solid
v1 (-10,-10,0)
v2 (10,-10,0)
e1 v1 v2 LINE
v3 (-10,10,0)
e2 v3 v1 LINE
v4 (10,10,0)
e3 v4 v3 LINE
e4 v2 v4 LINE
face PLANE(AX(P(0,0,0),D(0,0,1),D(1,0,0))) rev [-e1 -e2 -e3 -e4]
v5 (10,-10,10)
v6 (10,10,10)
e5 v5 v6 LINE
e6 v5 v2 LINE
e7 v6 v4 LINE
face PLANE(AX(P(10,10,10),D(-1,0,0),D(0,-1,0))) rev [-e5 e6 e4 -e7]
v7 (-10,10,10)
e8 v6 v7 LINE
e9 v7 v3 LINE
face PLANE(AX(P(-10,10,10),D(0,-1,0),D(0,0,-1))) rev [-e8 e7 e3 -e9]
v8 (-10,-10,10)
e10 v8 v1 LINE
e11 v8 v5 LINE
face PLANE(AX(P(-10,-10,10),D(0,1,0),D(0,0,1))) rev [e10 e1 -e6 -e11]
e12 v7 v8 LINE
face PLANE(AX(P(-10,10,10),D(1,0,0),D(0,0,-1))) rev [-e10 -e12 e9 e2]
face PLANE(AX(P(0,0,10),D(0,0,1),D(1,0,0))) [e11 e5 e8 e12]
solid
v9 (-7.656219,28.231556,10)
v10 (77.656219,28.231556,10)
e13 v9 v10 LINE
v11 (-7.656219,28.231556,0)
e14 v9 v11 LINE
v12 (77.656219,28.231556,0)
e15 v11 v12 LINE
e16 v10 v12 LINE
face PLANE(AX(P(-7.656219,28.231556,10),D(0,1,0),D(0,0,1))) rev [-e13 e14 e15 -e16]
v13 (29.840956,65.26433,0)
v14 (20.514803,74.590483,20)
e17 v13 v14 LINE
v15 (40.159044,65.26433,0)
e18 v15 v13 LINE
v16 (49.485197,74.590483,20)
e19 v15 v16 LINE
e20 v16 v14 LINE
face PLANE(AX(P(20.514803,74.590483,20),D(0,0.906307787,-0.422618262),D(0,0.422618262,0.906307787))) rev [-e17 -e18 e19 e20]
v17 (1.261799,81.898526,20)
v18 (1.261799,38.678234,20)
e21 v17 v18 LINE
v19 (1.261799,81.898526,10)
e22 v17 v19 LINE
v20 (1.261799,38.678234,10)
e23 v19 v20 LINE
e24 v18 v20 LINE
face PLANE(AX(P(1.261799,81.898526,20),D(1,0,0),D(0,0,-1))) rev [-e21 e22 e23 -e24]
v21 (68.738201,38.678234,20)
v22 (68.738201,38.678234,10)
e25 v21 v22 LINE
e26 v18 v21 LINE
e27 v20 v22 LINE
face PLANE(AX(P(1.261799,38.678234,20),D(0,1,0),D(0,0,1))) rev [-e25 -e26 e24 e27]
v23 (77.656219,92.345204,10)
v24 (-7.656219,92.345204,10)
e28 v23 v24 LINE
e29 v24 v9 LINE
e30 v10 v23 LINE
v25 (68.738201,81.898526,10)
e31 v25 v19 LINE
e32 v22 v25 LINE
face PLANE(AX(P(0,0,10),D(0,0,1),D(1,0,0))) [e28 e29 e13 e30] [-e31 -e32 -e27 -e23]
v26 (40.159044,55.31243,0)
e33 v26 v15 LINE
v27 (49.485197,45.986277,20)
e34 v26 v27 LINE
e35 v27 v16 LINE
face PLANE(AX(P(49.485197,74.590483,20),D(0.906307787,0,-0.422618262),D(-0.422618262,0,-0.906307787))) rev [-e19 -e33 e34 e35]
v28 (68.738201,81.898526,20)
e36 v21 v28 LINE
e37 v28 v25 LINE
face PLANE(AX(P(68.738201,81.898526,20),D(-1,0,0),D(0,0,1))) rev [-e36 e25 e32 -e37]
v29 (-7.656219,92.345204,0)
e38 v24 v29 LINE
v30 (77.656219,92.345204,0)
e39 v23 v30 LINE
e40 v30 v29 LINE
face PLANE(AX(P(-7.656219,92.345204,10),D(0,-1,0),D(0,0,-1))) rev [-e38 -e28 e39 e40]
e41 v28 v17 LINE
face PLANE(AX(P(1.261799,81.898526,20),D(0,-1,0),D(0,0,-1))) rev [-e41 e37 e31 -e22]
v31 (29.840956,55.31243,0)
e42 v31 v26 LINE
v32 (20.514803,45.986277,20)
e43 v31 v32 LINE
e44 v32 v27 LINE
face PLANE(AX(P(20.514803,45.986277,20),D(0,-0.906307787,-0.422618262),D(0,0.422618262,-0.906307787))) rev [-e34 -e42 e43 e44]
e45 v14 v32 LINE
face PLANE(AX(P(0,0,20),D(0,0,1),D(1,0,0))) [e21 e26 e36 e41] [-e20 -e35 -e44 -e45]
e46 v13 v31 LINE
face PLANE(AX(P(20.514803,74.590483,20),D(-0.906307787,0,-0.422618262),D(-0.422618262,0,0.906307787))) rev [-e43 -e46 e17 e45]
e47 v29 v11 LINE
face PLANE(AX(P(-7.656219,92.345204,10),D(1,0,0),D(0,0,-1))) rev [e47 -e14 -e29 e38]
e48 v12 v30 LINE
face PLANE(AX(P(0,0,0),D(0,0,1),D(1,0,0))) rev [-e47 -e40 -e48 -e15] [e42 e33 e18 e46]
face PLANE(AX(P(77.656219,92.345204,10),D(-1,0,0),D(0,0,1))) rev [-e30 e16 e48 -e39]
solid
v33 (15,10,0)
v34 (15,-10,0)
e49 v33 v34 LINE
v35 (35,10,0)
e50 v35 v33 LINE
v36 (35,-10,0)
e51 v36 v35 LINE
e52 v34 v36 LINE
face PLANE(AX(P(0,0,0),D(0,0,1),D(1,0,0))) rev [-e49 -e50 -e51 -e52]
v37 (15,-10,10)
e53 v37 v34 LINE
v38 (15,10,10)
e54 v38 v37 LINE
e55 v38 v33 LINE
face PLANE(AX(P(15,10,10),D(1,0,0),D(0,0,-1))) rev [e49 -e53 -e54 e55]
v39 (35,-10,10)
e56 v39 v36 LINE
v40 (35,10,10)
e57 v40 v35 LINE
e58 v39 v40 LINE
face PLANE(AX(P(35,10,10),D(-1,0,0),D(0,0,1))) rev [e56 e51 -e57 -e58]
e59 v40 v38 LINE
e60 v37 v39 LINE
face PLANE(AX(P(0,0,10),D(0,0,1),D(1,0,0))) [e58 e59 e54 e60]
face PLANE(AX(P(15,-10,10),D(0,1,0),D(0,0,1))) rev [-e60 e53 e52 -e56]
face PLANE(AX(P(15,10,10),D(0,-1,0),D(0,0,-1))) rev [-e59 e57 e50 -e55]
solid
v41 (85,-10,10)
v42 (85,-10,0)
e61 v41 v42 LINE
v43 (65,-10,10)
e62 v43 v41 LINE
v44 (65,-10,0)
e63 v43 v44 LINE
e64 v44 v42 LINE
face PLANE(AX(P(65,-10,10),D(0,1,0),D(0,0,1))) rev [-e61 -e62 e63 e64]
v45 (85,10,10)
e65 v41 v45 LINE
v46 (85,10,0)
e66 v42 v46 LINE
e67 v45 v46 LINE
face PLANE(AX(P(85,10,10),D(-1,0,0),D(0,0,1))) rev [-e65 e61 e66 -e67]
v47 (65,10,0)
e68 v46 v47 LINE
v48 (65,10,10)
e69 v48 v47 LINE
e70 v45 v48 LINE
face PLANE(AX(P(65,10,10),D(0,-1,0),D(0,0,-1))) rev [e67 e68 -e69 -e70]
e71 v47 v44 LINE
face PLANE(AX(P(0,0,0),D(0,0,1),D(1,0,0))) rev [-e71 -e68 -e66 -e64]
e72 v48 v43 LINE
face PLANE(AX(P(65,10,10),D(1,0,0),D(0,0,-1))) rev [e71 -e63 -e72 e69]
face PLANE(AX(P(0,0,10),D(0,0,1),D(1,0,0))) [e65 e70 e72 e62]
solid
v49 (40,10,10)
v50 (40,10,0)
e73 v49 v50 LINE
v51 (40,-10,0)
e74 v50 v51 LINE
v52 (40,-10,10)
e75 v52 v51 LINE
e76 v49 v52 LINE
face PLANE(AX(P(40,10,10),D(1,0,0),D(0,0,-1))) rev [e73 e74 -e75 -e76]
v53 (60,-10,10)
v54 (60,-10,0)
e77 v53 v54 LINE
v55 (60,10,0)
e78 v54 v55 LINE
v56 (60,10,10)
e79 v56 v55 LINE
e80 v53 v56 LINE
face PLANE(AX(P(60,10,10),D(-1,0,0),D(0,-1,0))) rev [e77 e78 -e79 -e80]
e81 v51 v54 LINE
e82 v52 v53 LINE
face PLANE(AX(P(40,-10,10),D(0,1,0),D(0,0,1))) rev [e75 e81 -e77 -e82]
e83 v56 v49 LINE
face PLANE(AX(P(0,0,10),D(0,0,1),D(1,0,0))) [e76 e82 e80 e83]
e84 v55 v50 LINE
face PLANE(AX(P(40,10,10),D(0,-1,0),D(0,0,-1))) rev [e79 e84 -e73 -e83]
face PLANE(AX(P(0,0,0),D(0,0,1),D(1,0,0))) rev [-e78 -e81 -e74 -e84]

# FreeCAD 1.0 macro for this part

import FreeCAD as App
import Part
import Sketcher
from FreeCAD import Vector


def add_polygon(sketch, points):
    """Adds a closed chain of lines whose ends are joined by coincident constraints."""
    first, n = sketch.GeometryCount, len(points)
    for a, b in zip(points, points[1:] + points[:1]):
        sketch.addGeometry(Part.LineSegment(App.Vector(*a, 0), App.Vector(*b, 0)), False)
    for i in range(n):
        sketch.addConstraint(Sketcher.Constraint("Coincident", first + i, 2, first + (i + 1) % n, 1))

doc = App.newDocument("Part")
params = doc.addObject("Spreadsheet::Sheet", "Params")
for row, (alias, value) in enumerate([
    ("sketch1_width", "20 mm"),
    ("pad1_length", "10 mm"),
    ("sketch2_width", "20 mm"),
    ("pad2_length", "10 mm"),
    ("sketch3_width", "20 mm"),
    ("pad3_length", "10 mm"),
    ("sketch4_width", "20 mm"),
    ("pad4_length", "10 mm"),
    ("pad5_length", "10 mm"),
    ("pad6_length", "10 mm"),
    ("pocket1_length", "20 mm"),
    ("pocket1_taper", "-25 deg"),
], start=1):
    params.set(f"A{row}", alias)
    params.set(f"B{row}", "=" + value)
    params.setAlias(f"B{row}", alias)

body = doc.addObject("PartDesign::Body", "Body")

# Sketch on XY plane
sketch1 = body.newObject("Sketcher::SketchObject", "Sketch")
sketch1.AttachmentSupport = (doc.getObject("XY_Plane"), [""])
sketch1.MapMode = "FlatFace"
add_polygon(sketch1, [(15, 10), (15, -10), (35, -10), (35, 10)])  # lines 0-3
sketch1.addConstraint([
    Sketcher.Constraint("Vertical", 0),
    Sketcher.Constraint("Horizontal", 1),
    Sketcher.Constraint("Vertical", 2),
    Sketcher.Constraint("Horizontal", 3),
    Sketcher.Constraint("Equal", 3, 0),
    Sketcher.Constraint("DistanceX", 1, 1, 1, 2, 20.0),
    Sketcher.Constraint("DistanceX", -1, 1, 0, 2, 15.0),
    Sketcher.Constraint("DistanceY", 0, 2, -1, 1, 10.0),
])
sketch1.setExpression("Constraints[9]", "Params.sketch1_width")
pad1 = body.newObject("PartDesign::Pad", "Pad")
pad1.Profile = sketch1
pad1.setExpression("Length", "Params.pad1_length")
body2 = doc.addObject("PartDesign::Body", "Body001")

# Sketch on XY plane
sketch2 = body2.newObject("Sketcher::SketchObject", "Sketch001")
sketch2.AttachmentSupport = (doc.getObject("XY_Plane001"), [""])
sketch2.MapMode = "FlatFace"
add_polygon(sketch2, [(-10, 10), (-10, -10), (10, -10), (10, 10)])  # lines 0-3
sketch2.addConstraint([
    Sketcher.Constraint("Vertical", 0),
    Sketcher.Constraint("Horizontal", 1),
    Sketcher.Constraint("Vertical", 2),
    Sketcher.Constraint("Horizontal", 3),
    Sketcher.Constraint("Symmetric", 0, 2, 2, 2, -1, 1),
    Sketcher.Constraint("Equal", 3, 0),
    Sketcher.Constraint("DistanceX", 1, 1, 1, 2, 20.0),
])
sketch2.setExpression("Constraints[10]", "Params.sketch2_width")
pad2 = body2.newObject("PartDesign::Pad", "Pad001")
pad2.Profile = sketch2
pad2.setExpression("Length", "Params.pad2_length")
body3 = doc.addObject("PartDesign::Body", "Body002")

# Sketch on XY plane
sketch3 = body3.newObject("Sketcher::SketchObject", "Sketch002")
sketch3.AttachmentSupport = (doc.getObject("XY_Plane002"), [""])
sketch3.MapMode = "FlatFace"
add_polygon(sketch3, [(40, 10), (40, -10), (60, -10), (60, 10)])  # lines 0-3
sketch3.addConstraint([
    Sketcher.Constraint("Vertical", 0),
    Sketcher.Constraint("Horizontal", 1),
    Sketcher.Constraint("Vertical", 2),
    Sketcher.Constraint("Horizontal", 3),
    Sketcher.Constraint("Equal", 3, 0),
    Sketcher.Constraint("DistanceX", 1, 1, 1, 2, 20.0),
    Sketcher.Constraint("DistanceX", -1, 1, 0, 2, 40.0),
    Sketcher.Constraint("DistanceY", 0, 2, -1, 1, 10.0),
])
sketch3.setExpression("Constraints[9]", "Params.sketch3_width")
pad3 = body3.newObject("PartDesign::Pad", "Pad002")
pad3.Profile = sketch3
pad3.setExpression("Length", "Params.pad3_length")
body4 = doc.addObject("PartDesign::Body", "Body003")

# Sketch on XY plane
sketch4 = body4.newObject("Sketcher::SketchObject", "Sketch003")
sketch4.AttachmentSupport = (doc.getObject("XY_Plane003"), [""])
sketch4.MapMode = "FlatFace"
add_polygon(sketch4, [(65, 10), (65, -10), (85, -10), (85, 10)])  # lines 0-3
sketch4.addConstraint([
    Sketcher.Constraint("Vertical", 0),
    Sketcher.Constraint("Horizontal", 1),
    Sketcher.Constraint("Vertical", 2),
    Sketcher.Constraint("Horizontal", 3),
    Sketcher.Constraint("Equal", 3, 0),
    Sketcher.Constraint("DistanceX", 1, 1, 1, 2, 20.0),
    Sketcher.Constraint("DistanceX", -1, 1, 0, 2, 65.0),
    Sketcher.Constraint("DistanceY", 0, 2, -1, 1, 10.0),
])
sketch4.setExpression("Constraints[9]", "Params.sketch4_width")
pad4 = body4.newObject("PartDesign::Pad", "Pad003")
pad4.Profile = sketch4
pad4.setExpression("Length", "Params.pad4_length")
body5 = doc.addObject("PartDesign::Body", "Body004")

# Sketch on XY plane
sketch5 = body5.newObject("Sketcher::SketchObject", "Sketch004")
sketch5.AttachmentSupport = (doc.getObject("XY_Plane004"), [""])
sketch5.MapMode = "FlatFace"
add_polygon(sketch5, [(-8, 92), (-8, 28), (78, 28), (78, 92)])  # lines 0-3
sketch5.addConstraint([
    Sketcher.Constraint("Vertical", 0),
    Sketcher.Constraint("Horizontal", 1),
    Sketcher.Constraint("Vertical", 2),
    Sketcher.Constraint("Horizontal", 3),
    Sketcher.Constraint("DistanceX", 1, 1, 1, 2, 85.312438),
    Sketcher.Constraint("DistanceY", 0, 2, 0, 1, 64.113649),
    Sketcher.Constraint("DistanceX", 0, 2, -1, 1, 7.656219),
    Sketcher.Constraint("DistanceY", -1, 1, 0, 2, 28.231556),
])
pad5 = body5.newObject("PartDesign::Pad", "Pad004")
pad5.Profile = sketch5
pad5.setExpression("Length", "Params.pad5_length")

# Sketch on XY plane
sketch6 = body5.newObject("Sketcher::SketchObject", "Sketch005")
sketch6.AttachmentSupport = (doc.getObject("XY_Plane004"), [""])
sketch6.MapMode = "FlatFace"
sketch6.AttachmentOffset = App.Placement(Vector(0, 0, 10), App.Rotation())
add_polygon(sketch6, [(1, 82), (1, 39), (69, 39), (69, 82)])  # lines 0-3
sketch6.addConstraint([
    Sketcher.Constraint("Vertical", 0),
    Sketcher.Constraint("Horizontal", 1),
    Sketcher.Constraint("Vertical", 2),
    Sketcher.Constraint("Horizontal", 3),
    Sketcher.Constraint("DistanceX", 1, 1, 1, 2, 67.476401),
    Sketcher.Constraint("DistanceY", 0, 2, 0, 1, 43.220291),
    Sketcher.Constraint("DistanceX", -1, 1, 0, 2, 1.261799),
    Sketcher.Constraint("DistanceY", -1, 1, 0, 2, 38.678234),
])
pad6 = body5.newObject("PartDesign::Pad", "Pad005")
pad6.Profile = sketch6
pad6.setExpression("Length", "Params.pad6_length")

# Sketch on XY plane
sketch7 = body5.newObject("Sketcher::SketchObject", "Sketch006")
sketch7.AttachmentSupport = (doc.getObject("XY_Plane004"), [""])
sketch7.MapMode = "FlatFace"
sketch7.AttachmentOffset = App.Placement(Vector(0, 0, 20), App.Rotation())
add_polygon(sketch7, [(21, 75), (21, 46), (49, 46), (49, 75)])  # lines 0-3
sketch7.addConstraint([
    Sketcher.Constraint("Vertical", 0),
    Sketcher.Constraint("Horizontal", 1),
    Sketcher.Constraint("Vertical", 2),
    Sketcher.Constraint("Horizontal", 3),
    Sketcher.Constraint("DistanceX", 1, 1, 1, 2, 28.970394),
    Sketcher.Constraint("DistanceY", 0, 2, 0, 1, 28.604206),
    Sketcher.Constraint("DistanceX", -1, 1, 0, 2, 20.514803),
    Sketcher.Constraint("DistanceY", -1, 1, 0, 2, 45.986277),
])
pocket1 = body5.newObject("PartDesign::Pocket", "Pocket")
pocket1.Profile = sketch7
pocket1.setExpression("Length", "Params.pocket1_length")
pocket1.setExpression("TaperAngle", "Params.pocket1_taper")

doc.recompute()
